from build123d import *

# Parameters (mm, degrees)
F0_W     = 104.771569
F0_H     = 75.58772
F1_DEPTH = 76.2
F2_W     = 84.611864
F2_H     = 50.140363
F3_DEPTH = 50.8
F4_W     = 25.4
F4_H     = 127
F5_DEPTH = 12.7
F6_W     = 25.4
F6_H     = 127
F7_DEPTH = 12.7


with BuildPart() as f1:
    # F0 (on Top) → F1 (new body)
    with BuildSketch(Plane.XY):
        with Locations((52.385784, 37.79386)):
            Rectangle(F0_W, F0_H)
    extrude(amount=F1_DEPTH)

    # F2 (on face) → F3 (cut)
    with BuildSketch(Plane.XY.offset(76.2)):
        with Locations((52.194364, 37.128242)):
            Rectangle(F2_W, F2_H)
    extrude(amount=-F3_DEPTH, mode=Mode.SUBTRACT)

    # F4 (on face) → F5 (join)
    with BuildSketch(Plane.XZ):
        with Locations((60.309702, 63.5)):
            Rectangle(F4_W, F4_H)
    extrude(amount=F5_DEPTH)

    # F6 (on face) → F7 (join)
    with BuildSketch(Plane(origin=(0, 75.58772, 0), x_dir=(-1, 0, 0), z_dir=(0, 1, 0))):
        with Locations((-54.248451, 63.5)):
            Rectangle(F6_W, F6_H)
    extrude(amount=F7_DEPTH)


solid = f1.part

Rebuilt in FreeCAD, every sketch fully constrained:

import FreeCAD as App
import Part
import Sketcher

V = App.Vector
Q = App.Units.Quantity

doc = App.newDocument("Part")
body = doc.addObject("PartDesign::Body", "Body")

sketch1 = doc.addObject("Sketcher::SketchObject", "Sketch")
body.addObject(sketch1)
sketch1.AttachmentSupport = (doc.XY_Plane, [""])
sketch1.MapMode = "FlatFace"
sketch1.addGeometry([
    Part.LineSegment(V(0, 75.58772, 0), V(0, 0, 0)),
    Part.LineSegment(V(0, 0, 0), V(104.771569, 0, 0)),
    Part.LineSegment(V(104.771569, 0, 0), V(104.771569, 75.58772, 0)),
    Part.LineSegment(V(104.771569, 75.58772, 0), V(0, 75.58772, 0)),
], False)
sketch1.addConstraint([
    Sketcher.Constraint("Coincident", 0, 2, 1, 1),
    Sketcher.Constraint("Coincident", 1, 2, 2, 1),
    Sketcher.Constraint("Coincident", 2, 2, 3, 1),
    Sketcher.Constraint("Coincident", 3, 2, 0, 1),
    Sketcher.Constraint("Vertical", 0),
    Sketcher.Constraint("Horizontal", 1),
    Sketcher.Constraint("Vertical", 2),
    Sketcher.Constraint("Horizontal", 3),
    Sketcher.Constraint("Coincident", 0, 2, -1, 1),
    Sketcher.Constraint("DistanceX", 1, 1, 1, 2, Q("104.771569 mm")),
    Sketcher.Constraint("DistanceY", 0, 2, 0, 1, Q("75.58772 mm")),
])
pad1 = doc.addObject("PartDesign::Pad", "Pad")
body.addObject(pad1)
pad1.Profile = sketch1
pad1.Length = Q("3 in")

sketch2 = doc.addObject("Sketcher::SketchObject", "Sketch001")
body.addObject(sketch2)
sketch2.AttachmentSupport = (doc.XY_Plane, [""])
sketch2.MapMode = "FlatFace"
sketch2.AttachmentOffset = App.Placement(V(0, 0, 3 * 25.4), App.Rotation())
sketch2.addGeometry([
    Part.LineSegment(V(9.888432, 62.198423, 0), V(9.888432, 12.05806, 0)),
    Part.LineSegment(V(9.888432, 12.05806, 0), V(94.500296, 12.05806, 0)),
    Part.LineSegment(V(94.500296, 12.05806, 0), V(94.500296, 62.198423, 0)),
    Part.LineSegment(V(94.500296, 62.198423, 0), V(9.888432, 62.198423, 0)),
], False)
sketch2.addConstraint([
    Sketcher.Constraint("Coincident", 0, 2, 1, 1),
    Sketcher.Constraint("Coincident", 1, 2, 2, 1),
    Sketcher.Constraint("Coincident", 2, 2, 3, 1),
    Sketcher.Constraint("Coincident", 3, 2, 0, 1),
    Sketcher.Constraint("Vertical", 0),
    Sketcher.Constraint("Horizontal", 1),
    Sketcher.Constraint("Vertical", 2),
    Sketcher.Constraint("Horizontal", 3),
    Sketcher.Constraint("DistanceX", 1, 1, 1, 2, Q("84.611864 mm")),
    Sketcher.Constraint("DistanceY", 0, 2, 0, 1, Q("50.140363 mm")),
    Sketcher.Constraint("DistanceY", -1, 1, 0, 2, Q("12.05806 mm")),
    Sketcher.Constraint("DistanceX", -1, 1, 0, 2, Q("9.888432 mm")),
])
pocket1 = doc.addObject("PartDesign::Pocket", "Pocket")
body.addObject(pocket1)
pocket1.Profile = sketch2
pocket1.Length = Q("2 in")

sketch3 = doc.addObject("Sketcher::SketchObject", "Sketch002")
body.addObject(sketch3)
sketch3.AttachmentSupport = (doc.XZ_Plane, [""])
sketch3.MapMode = "FlatFace"
sketch3.addGeometry([
    Part.LineSegment(V(47.609702, 127, 0), V(47.609702, 0, 0)),
    Part.LineSegment(V(47.609702, 0, 0), V(73.009702, 0, 0)),
    Part.LineSegment(V(73.009702, 0, 0), V(73.009702, 127, 0)),
    Part.LineSegment(V(73.009702, 127, 0), V(47.609702, 127, 0)),
], False)
sketch3.addConstraint([
    Sketcher.Constraint("Coincident", 0, 2, 1, 1),
    Sketcher.Constraint("Coincident", 1, 2, 2, 1),
    Sketcher.Constraint("Coincident", 2, 2, 3, 1),
    Sketcher.Constraint("Coincident", 3, 2, 0, 1),
    Sketcher.Constraint("Vertical", 0),
    Sketcher.Constraint("Horizontal", 1),
    Sketcher.Constraint("Vertical", 2),
    Sketcher.Constraint("Horizontal", 3),
    Sketcher.Constraint("PointOnObject", 0, 2, -1),
    Sketcher.Constraint("DistanceX", 1, 1, 1, 2, Q("1 in")),
    Sketcher.Constraint("DistanceY", 0, 2, 0, 1, Q("5 in")),
    Sketcher.Constraint("DistanceX", -1, 1, 0, 2, Q("47.609702 mm")),
])
pad2 = doc.addObject("PartDesign::Pad", "Pad001")
body.addObject(pad2)
pad2.Profile = sketch3
pad2.Length = Q("0.5 in")

sketch4 = doc.addObject("Sketcher::SketchObject", "Sketch003")
body.addObject(sketch4)
sketch4.AttachmentSupport = (doc.XZ_Plane, [""])
sketch4.MapMode = "FlatFace"
sketch4.AttachmentOffset = App.Placement(V(0, 0, -75.58772), App.Rotation())
sketch4.addGeometry([
    Part.LineSegment(V(66.948451, 127, 0), V(66.948451, 0, 0)),
    Part.LineSegment(V(66.948451, 0, 0), V(41.548451, 0, 0)),
    Part.LineSegment(V(41.548451, 0, 0), V(41.548451, 127, 0)),
    Part.LineSegment(V(41.548451, 127, 0), V(66.948451, 127, 0)),
], False)
sketch4.addConstraint([
    Sketcher.Constraint("Coincident", 0, 2, 1, 1),
    Sketcher.Constraint("Coincident", 1, 2, 2, 1),
    Sketcher.Constraint("Coincident", 2, 2, 3, 1),
    Sketcher.Constraint("Coincident", 3, 2, 0, 1),
    Sketcher.Constraint("Vertical", 0),
    Sketcher.Constraint("Horizontal", 1),
    Sketcher.Constraint("Vertical", 2),
    Sketcher.Constraint("Horizontal", 3),
    Sketcher.Constraint("PointOnObject", 0, 2, -1),
    Sketcher.Constraint("DistanceX", 1, 2, 1, 1, Q("1 in")),
    Sketcher.Constraint("DistanceY", 0, 2, 0, 1, Q("5 in")),
    Sketcher.Constraint("DistanceX", -1, 1, 0, 2, Q("66.948451 mm")),
])
pad3 = doc.addObject("PartDesign::Pad", "Pad002")
body.addObject(pad3)
pad3.Profile = sketch4
pad3.Length = Q("0.5 in")
pad3.Reversed = True

doc.recompute()
